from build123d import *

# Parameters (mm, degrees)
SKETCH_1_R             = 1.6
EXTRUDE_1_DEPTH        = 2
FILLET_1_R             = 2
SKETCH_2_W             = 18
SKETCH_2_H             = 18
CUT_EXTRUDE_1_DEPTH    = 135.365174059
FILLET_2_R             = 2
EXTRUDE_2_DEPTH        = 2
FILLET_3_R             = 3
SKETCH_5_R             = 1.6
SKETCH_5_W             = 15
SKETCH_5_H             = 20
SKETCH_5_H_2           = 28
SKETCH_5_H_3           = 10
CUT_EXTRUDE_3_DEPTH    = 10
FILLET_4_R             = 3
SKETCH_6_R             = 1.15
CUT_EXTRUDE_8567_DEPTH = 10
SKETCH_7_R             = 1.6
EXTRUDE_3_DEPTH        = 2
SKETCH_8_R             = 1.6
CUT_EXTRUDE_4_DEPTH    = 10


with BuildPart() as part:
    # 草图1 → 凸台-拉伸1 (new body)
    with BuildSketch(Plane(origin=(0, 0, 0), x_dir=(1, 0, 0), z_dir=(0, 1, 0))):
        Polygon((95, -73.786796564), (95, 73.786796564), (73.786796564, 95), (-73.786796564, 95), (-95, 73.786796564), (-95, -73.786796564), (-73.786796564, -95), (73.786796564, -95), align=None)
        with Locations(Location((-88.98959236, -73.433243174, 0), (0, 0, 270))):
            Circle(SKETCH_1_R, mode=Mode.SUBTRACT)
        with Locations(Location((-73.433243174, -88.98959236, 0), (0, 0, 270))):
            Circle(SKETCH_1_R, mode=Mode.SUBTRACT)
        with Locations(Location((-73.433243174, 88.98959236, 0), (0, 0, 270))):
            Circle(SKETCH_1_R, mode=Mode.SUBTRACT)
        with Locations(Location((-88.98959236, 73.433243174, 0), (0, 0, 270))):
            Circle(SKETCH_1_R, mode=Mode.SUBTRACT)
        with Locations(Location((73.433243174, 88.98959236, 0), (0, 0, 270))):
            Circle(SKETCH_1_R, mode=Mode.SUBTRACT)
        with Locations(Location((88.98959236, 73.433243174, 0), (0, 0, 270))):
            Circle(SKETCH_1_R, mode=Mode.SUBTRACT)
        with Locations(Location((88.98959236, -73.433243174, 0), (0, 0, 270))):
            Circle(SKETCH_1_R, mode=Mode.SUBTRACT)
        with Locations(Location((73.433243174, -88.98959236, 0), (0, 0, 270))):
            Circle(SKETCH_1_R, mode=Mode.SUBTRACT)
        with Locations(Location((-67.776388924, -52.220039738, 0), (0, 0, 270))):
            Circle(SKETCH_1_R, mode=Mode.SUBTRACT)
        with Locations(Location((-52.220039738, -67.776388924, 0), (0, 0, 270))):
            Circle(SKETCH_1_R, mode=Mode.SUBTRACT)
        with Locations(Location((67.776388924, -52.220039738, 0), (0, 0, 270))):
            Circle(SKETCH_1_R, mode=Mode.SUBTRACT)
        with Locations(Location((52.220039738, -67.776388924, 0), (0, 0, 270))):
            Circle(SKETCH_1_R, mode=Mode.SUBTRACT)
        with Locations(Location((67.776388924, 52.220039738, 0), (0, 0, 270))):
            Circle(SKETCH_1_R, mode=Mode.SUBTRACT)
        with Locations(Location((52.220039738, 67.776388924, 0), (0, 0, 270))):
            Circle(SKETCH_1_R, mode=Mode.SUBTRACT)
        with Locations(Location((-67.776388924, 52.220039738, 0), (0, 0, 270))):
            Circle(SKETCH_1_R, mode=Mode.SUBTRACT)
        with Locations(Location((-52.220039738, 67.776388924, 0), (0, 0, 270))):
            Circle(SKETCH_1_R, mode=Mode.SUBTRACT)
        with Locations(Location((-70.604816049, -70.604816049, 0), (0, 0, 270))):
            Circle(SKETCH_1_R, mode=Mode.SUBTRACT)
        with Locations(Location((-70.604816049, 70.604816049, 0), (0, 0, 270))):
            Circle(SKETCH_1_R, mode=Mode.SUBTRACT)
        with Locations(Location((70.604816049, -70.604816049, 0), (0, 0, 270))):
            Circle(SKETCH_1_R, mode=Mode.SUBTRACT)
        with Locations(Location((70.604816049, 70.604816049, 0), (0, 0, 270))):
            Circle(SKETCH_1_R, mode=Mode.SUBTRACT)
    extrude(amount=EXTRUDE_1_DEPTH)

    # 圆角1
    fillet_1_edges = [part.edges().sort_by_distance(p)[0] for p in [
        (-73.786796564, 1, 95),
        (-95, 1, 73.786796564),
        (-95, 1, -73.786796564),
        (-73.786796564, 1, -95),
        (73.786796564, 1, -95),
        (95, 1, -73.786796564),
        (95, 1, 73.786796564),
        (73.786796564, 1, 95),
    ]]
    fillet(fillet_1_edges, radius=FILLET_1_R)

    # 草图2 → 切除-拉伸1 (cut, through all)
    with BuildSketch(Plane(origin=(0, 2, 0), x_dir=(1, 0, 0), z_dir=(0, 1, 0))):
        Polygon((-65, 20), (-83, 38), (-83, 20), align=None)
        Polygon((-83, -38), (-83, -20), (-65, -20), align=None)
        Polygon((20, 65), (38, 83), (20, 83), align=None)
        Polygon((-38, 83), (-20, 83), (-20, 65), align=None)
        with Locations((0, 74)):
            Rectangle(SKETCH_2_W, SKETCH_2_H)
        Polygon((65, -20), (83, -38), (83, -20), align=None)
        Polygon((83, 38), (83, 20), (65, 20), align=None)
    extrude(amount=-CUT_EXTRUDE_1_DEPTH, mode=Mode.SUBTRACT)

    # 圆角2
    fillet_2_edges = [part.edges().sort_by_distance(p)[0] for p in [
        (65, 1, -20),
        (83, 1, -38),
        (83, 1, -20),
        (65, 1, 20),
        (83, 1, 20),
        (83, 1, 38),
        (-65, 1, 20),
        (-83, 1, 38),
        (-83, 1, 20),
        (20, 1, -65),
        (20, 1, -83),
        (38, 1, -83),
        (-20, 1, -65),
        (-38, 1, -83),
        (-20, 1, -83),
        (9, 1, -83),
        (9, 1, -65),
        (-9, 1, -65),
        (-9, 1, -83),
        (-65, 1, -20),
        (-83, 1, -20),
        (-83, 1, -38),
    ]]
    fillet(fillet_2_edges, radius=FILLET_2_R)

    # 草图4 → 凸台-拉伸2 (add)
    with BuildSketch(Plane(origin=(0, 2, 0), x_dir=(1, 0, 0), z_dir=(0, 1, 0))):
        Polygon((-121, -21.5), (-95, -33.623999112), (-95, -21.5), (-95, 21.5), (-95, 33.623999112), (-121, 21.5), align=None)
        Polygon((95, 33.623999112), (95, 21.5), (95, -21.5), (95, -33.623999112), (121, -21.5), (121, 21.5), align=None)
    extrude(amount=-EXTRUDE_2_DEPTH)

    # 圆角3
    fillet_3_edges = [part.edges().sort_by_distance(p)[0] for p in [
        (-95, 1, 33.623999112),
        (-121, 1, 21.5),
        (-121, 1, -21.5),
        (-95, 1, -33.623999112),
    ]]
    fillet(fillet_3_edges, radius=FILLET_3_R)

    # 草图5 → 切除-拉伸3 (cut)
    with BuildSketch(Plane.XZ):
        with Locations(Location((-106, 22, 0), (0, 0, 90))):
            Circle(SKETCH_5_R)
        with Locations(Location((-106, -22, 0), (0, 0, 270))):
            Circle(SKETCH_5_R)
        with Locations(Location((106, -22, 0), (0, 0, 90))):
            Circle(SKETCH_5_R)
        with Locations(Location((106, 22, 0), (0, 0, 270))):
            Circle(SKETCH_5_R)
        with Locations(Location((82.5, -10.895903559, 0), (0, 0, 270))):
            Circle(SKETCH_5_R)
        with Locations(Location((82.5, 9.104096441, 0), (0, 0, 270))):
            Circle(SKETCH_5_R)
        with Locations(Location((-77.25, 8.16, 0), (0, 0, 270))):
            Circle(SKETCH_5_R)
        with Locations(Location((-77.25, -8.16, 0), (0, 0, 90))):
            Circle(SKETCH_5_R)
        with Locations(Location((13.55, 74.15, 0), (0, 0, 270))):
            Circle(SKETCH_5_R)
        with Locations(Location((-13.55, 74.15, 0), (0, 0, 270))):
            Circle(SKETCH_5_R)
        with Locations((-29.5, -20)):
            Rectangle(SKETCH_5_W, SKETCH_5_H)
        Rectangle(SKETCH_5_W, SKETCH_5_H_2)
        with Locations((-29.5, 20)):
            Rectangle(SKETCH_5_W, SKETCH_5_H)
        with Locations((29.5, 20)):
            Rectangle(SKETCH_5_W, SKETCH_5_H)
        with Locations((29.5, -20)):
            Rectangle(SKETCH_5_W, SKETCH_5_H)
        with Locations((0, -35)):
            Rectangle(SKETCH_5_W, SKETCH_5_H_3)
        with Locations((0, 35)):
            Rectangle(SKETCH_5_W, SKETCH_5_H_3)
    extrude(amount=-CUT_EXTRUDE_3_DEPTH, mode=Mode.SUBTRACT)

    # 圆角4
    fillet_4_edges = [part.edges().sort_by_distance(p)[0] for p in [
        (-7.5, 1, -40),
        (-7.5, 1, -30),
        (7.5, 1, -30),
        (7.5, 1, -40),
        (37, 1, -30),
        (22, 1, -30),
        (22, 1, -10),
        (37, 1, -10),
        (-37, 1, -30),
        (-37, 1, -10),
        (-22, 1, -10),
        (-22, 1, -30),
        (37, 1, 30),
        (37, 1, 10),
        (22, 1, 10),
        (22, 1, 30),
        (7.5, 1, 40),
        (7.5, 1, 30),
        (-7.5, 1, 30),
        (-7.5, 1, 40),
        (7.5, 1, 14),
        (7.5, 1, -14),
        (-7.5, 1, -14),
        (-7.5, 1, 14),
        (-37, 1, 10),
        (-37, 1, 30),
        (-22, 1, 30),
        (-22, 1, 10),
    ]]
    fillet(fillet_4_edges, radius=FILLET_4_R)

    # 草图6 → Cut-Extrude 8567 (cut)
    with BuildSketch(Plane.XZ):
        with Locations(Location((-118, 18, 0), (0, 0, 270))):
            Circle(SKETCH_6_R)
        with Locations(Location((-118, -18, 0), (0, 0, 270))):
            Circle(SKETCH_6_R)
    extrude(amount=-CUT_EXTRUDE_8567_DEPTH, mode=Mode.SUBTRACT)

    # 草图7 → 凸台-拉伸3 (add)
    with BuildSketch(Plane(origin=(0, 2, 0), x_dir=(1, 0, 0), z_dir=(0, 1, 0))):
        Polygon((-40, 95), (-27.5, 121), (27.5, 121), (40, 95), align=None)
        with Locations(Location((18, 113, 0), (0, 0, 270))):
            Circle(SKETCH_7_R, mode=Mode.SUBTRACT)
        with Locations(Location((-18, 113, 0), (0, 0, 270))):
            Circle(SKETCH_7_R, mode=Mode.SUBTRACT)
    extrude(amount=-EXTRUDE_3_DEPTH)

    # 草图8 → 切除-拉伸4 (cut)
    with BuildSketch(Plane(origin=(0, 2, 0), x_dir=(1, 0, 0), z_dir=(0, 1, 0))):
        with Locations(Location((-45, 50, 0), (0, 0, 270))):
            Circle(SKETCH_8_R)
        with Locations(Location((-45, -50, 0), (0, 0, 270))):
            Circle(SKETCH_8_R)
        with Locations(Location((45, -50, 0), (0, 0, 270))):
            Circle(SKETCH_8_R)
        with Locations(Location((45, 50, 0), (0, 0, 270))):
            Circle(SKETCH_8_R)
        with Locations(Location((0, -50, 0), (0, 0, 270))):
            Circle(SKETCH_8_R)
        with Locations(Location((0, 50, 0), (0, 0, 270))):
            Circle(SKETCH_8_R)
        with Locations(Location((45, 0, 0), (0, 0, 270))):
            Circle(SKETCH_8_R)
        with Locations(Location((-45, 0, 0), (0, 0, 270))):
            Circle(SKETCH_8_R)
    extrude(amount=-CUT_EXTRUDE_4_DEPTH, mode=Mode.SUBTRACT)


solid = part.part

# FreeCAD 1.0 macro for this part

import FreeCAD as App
import Part
import Sketcher

V = App.Vector
Q = App.Units.Quantity


def edges_at(feature, points):
    """Names of the edges that pass closest to the given points."""
    edges = feature.Shape.Edges
    near = lambda p: min(range(len(edges)), key=lambda i: edges[i].distToShape(Part.Vertex(*p))[0])
    return sorted({f"Edge{near(p) + 1}" for p in points})

doc = App.newDocument("Part")
body = doc.addObject("PartDesign::Body", "Body")

sketch1 = body.newObject("Sketcher::SketchObject", "Sketch")
sketch1.AttachmentSupport = (doc.getObject("XZ_Plane"), [""])
sketch1.MapMode = "FlatFace"
sketch1.addGeometry([
    Part.LineSegment(V(95, 73.8, 0), V(95, -73.8, 0)),
    Part.LineSegment(V(95, -73.8, 0), V(73.8, -95, 0)),
    Part.LineSegment(V(73.8, -95, 0), V(-73.8, -95, 0)),
    Part.LineSegment(V(-73.8, -95, 0), V(-95, -73.8, 0)),
    Part.LineSegment(V(-95, -73.8, 0), V(-95, 73.8, 0)),
    Part.LineSegment(V(-95, 73.8, 0), V(-73.8, 95, 0)),
    Part.LineSegment(V(-73.8, 95, 0), V(73.8, 95, 0)),
    Part.LineSegment(V(73.8, 95, 0), V(95, 73.8, 0)),
    Part.Circle(V(-73.4, 89, 0), V(0, 0, 1), 1.6),
    Part.Circle(V(-89, 73.4, 0), V(0, 0, 1), 1.6),
    Part.Circle(V(-70.6, 70.6, 0), V(0, 0, 1), 1.6),
    Part.Circle(V(-52.2, 67.8, 0), V(0, 0, 1), 1.6),
    Part.Circle(V(-67.8, 52.2, 0), V(0, 0, 1), 1.6),
    Part.Circle(V(73.4, 89, 0), V(0, 0, 1), 1.6),
    Part.Circle(V(70.6, 70.6, 0), V(0, 0, 1), 1.6),
    Part.Circle(V(89, 73.4, 0), V(0, 0, 1), 1.6),
    Part.Circle(V(52.2, 67.8, 0), V(0, 0, 1), 1.6),
    Part.Circle(V(67.8, 52.2, 0), V(0, 0, 1), 1.6),
    Part.Circle(V(-67.8, -52.2, 0), V(0, 0, 1), 1.6),
    Part.Circle(V(-52.2, -67.8, 0), V(0, 0, 1), 1.6),
    Part.Circle(V(-89, -73.4, 0), V(0, 0, 1), 1.6),
    Part.Circle(V(-70.6, -70.6, 0), V(0, 0, 1), 1.6),
    Part.Circle(V(-73.4, -89, 0), V(0, 0, 1), 1.6),
    Part.Circle(V(67.8, -52.2, 0), V(0, 0, 1), 1.6),
    Part.Circle(V(52.2, -67.8, 0), V(0, 0, 1), 1.6),
    Part.Circle(V(70.6, -70.6, 0), V(0, 0, 1), 1.6),
    Part.Circle(V(89, -73.4, 0), V(0, 0, 1), 1.6),
    Part.Circle(V(73.4, -89, 0), V(0, 0, 1), 1.6),
], False)
sketch1.addConstraint([
    Sketcher.Constraint("Coincident", 0, 2, 1, 1),
    Sketcher.Constraint("Coincident", 1, 2, 2, 1),
    Sketcher.Constraint("Coincident", 2, 2, 3, 1),
    Sketcher.Constraint("Coincident", 3, 2, 4, 1),
    Sketcher.Constraint("Coincident", 4, 2, 5, 1),
    Sketcher.Constraint("Coincident", 5, 2, 6, 1),
    Sketcher.Constraint("Coincident", 6, 2, 7, 1),
    Sketcher.Constraint("Coincident", 7, 2, 0, 1),
    Sketcher.Constraint("Vertical", 0),
    Sketcher.Constraint("Horizontal", 2),
    Sketcher.Constraint("Vertical", 4),
    Sketcher.Constraint("Horizontal", 6),
    Sketcher.Constraint("Equal", 8, 9),
    Sketcher.Constraint("Equal", 9, 10),
    Sketcher.Constraint("Equal", 10, 11),
    Sketcher.Constraint("Equal", 11, 12),
    Sketcher.Constraint("Equal", 12, 13),
    Sketcher.Constraint("Equal", 13, 14),
    Sketcher.Constraint("Equal", 14, 15),
    Sketcher.Constraint("Equal", 15, 16),
    Sketcher.Constraint("Equal", 16, 17),
    Sketcher.Constraint("Equal", 17, 18),
    Sketcher.Constraint("Equal", 18, 19),
    Sketcher.Constraint("Equal", 19, 20),
    Sketcher.Constraint("Equal", 20, 21),
    Sketcher.Constraint("Equal", 21, 22),
    Sketcher.Constraint("Equal", 22, 23),
    Sketcher.Constraint("Equal", 23, 24),
    Sketcher.Constraint("Equal", 24, 25),
    Sketcher.Constraint("Equal", 25, 26),
    Sketcher.Constraint("Equal", 26, 27),
    Sketcher.Constraint("Symmetric", 17, 3, 18, 3, -1, 1),
    Sketcher.Constraint("Symmetric", 16, 3, 19, 3, -1, 1),
    Sketcher.Constraint("Symmetric", 15, 3, 20, 3, -1, 1),
    Sketcher.Constraint("Symmetric", 14, 3, 21, 3, -1, 1),
    Sketcher.Constraint("Symmetric", 13, 3, 22, 3, -1, 1),
    Sketcher.Constraint("Symmetric", 12, 3, 23, 3, -1, 1),
    Sketcher.Constraint("Symmetric", 11, 3, 24, 3, -1, 1),
    Sketcher.Constraint("Symmetric", 10, 3, 25, 3, -1, 1),
    Sketcher.Constraint("Symmetric", 9, 3, 26, 3, -1, 1),
    Sketcher.Constraint("Symmetric", 8, 3, 27, 3, -1, 1),
    Sketcher.Constraint("Symmetric", 0, 2, 4, 2, -1, 1),
    Sketcher.Constraint("Symmetric", 1, 2, 5, 2, -1, 1),
    Sketcher.Constraint("Symmetric", 8, 3, 13, 3, -2),
    Sketcher.Constraint("Symmetric", 10, 3, 14, 3, -2),
    Sketcher.Constraint("Symmetric", 9, 3, 15, 3, -2),
    Sketcher.Constraint("Symmetric", 11, 3, 16, 3, -2),
    Sketcher.Constraint("Symmetric", 12, 3, 17, 3, -2),
    Sketcher.Constraint("Perpendicular", 1, 3),
    Sketcher.Constraint("Perpendicular", 5, 7),
    Sketcher.Constraint("Horizontal", 0, 2, 3, 2),
    Sketcher.Constraint("Horizontal", 4, 2, 7, 2),
    Sketcher.Constraint("Vertical", 2, 2, 5, 2),
    Sketcher.Constraint("Equal", 6, 0),
    Sketcher.Constraint("Diameter", 8, Q("3.2 mm")),
    Sketcher.Constraint("Distance", 1, Q("30 mm")),
    Sketcher.Constraint("DistanceX", -1, 1, 0, 2, Q("95 mm")),
    Sketcher.Constraint("DistanceX", 11, 3, -1, 1, Q("52.22004 mm")),
    Sketcher.Constraint("DistanceY", -1, 1, 11, 3, Q("67.776389 mm")),
    Sketcher.Constraint("DistanceX", 12, 3, -1, 1, Q("67.776389 mm")),
    Sketcher.Constraint("DistanceY", -1, 1, 12, 3, Q("52.22004 mm")),
    Sketcher.Constraint("DistanceX", 9, 3, 8, 3, Q("15.556349 mm")),
    Sketcher.Constraint("DistanceY", 9, 3, 8, 3, Q("15.556349 mm")),
    Sketcher.Constraint("DistanceX", 10, 3, 13, 3, Q("144.038059 mm")),
    Sketcher.Constraint("DistanceX", 12, 3, 15, 3, Q("156.765981 mm")),
    Sketcher.Constraint("DistanceY", 20, 3, 10, 3, Q("144.038059 mm")),
    Sketcher.Constraint("DistanceY", 0, 2, 25, 3, Q("3.181981 mm")),
])
pad1 = body.newObject("PartDesign::Pad", "Pad")
pad1.Profile = sketch1
pad1.Length = 2
pad1.Reversed = True
doc.recompute()

fillet = body.newObject("PartDesign::Fillet", "Fillet")
fillet.Base = (pad1, edges_at(pad1, [
    (-73.787, 1, 95),
    (-95, 1, 73.787),
    (-95, 1, -73.787),
    (-73.787, 1, -95),
    (73.787, 1, -95),
    (95, 1, -73.787),
    (95, 1, 73.787),
    (73.787, 1, 95),
]))
fillet.Radius = 2

sketch2 = body.newObject("Sketcher::SketchObject", "Sketch001")
sketch2.AttachmentSupport = (doc.getObject("XZ_Plane"), [""])
sketch2.MapMode = "FlatFace"
sketch2.AttachmentOffset = App.Placement(V(0, 0, -2), App.Rotation())
sketch2.addGeometry([
    Part.LineSegment(V(-65, -20, 0), V(-83, -38, 0)),
    Part.LineSegment(V(-83, -38, 0), V(-83, -20, 0)),
    Part.LineSegment(V(-83, -20, 0), V(-65, -20, 0)),
    Part.LineSegment(V(-83, 20, 0), V(-83, 38, 0)),
    Part.LineSegment(V(-83, 38, 0), V(-65, 20, 0)),
    Part.LineSegment(V(-65, 20, 0), V(-83, 20, 0)),
    Part.LineSegment(V(20, -65, 0), V(38, -83, 0)),
    Part.LineSegment(V(38, -83, 0), V(20, -83, 0)),
    Part.LineSegment(V(20, -83, 0), V(20, -65, 0)),
    Part.LineSegment(V(-20, -83, 0), V(-38, -83, 0)),
    Part.LineSegment(V(-38, -83, 0), V(-20, -65, 0)),
    Part.LineSegment(V(-20, -65, 0), V(-20, -83, 0)),
    Part.LineSegment(V(-9, -83, 0), V(-9, -65, 0)),
    Part.LineSegment(V(-9, -65, 0), V(9, -65, 0)),
    Part.LineSegment(V(9, -65, 0), V(9, -83, 0)),
    Part.LineSegment(V(9, -83, 0), V(-9, -83, 0)),
    Part.LineSegment(V(65, 20, 0), V(83, 38, 0)),
    Part.LineSegment(V(83, 38, 0), V(83, 20, 0)),
    Part.LineSegment(V(83, 20, 0), V(65, 20, 0)),
    Part.LineSegment(V(83, -20, 0), V(83, -38, 0)),
    Part.LineSegment(V(83, -38, 0), V(65, -20, 0)),
    Part.LineSegment(V(65, -20, 0), V(83, -20, 0)),
], False)
sketch2.addConstraint([
    Sketcher.Constraint("Coincident", 0, 2, 1, 1),
    Sketcher.Constraint("Coincident", 1, 2, 2, 1),
    Sketcher.Constraint("Coincident", 2, 2, 0, 1),
    Sketcher.Constraint("Coincident", 3, 2, 4, 1),
    Sketcher.Constraint("Coincident", 4, 2, 5, 1),
    Sketcher.Constraint("Coincident", 5, 2, 3, 1),
    Sketcher.Constraint("Coincident", 6, 2, 7, 1),
    Sketcher.Constraint("Coincident", 7, 2, 8, 1),
    Sketcher.Constraint("Coincident", 8, 2, 6, 1),
    Sketcher.Constraint("Coincident", 9, 2, 10, 1),
    Sketcher.Constraint("Coincident", 10, 2, 11, 1),
    Sketcher.Constraint("Coincident", 11, 2, 9, 1),
    Sketcher.Constraint("Coincident", 12, 2, 13, 1),
    Sketcher.Constraint("Coincident", 13, 2, 14, 1),
    Sketcher.Constraint("Coincident", 14, 2, 15, 1),
    Sketcher.Constraint("Coincident", 15, 2, 12, 1),
    Sketcher.Constraint("Coincident", 16, 2, 17, 1),
    Sketcher.Constraint("Coincident", 17, 2, 18, 1),
    Sketcher.Constraint("Coincident", 18, 2, 16, 1),
    Sketcher.Constraint("Coincident", 19, 2, 20, 1),
    Sketcher.Constraint("Coincident", 20, 2, 21, 1),
    Sketcher.Constraint("Coincident", 21, 2, 19, 1),
    Sketcher.Constraint("Vertical", 1),
    Sketcher.Constraint("Horizontal", 2),
    Sketcher.Constraint("Vertical", 3),
    Sketcher.Constraint("Horizontal", 5),
    Sketcher.Constraint("Horizontal", 7),
    Sketcher.Constraint("Vertical", 8),
    Sketcher.Constraint("Horizontal", 9),
    Sketcher.Constraint("Vertical", 11),
    Sketcher.Constraint("Vertical", 12),
    Sketcher.Constraint("Horizontal", 13),
    Sketcher.Constraint("Vertical", 14),
    Sketcher.Constraint("Horizontal", 15),
    Sketcher.Constraint("Vertical", 17),
    Sketcher.Constraint("Horizontal", 18),
    Sketcher.Constraint("Vertical", 19),
    Sketcher.Constraint("Horizontal", 21),
    Sketcher.Constraint("Symmetric", 0, 2, 16, 2, -1, 1),
    Sketcher.Constraint("Symmetric", 2, 2, 18, 2, -1, 1),
    Sketcher.Constraint("Symmetric", 3, 2, 19, 2, -1, 1),
    Sketcher.Constraint("Symmetric", 4, 2, 20, 2, -1, 1),
    Sketcher.Constraint("Symmetric", 6, 2, 9, 2, -2),
    Sketcher.Constraint("Symmetric", 8, 2, 10, 2, -2),
    Sketcher.Constraint("Symmetric", 3, 2, 16, 2, -2),
    Sketcher.Constraint("Symmetric", 4, 2, 18, 2, -2),
    Sketcher.Constraint("Perpendicular", 0, 4),
    Sketcher.Constraint("Parallel", 4, 6),
    Sketcher.Constraint("Horizontal", 10, 2, 12, 2),
    Sketcher.Constraint("Horizontal", 11, 2, 14, 2),
    Sketcher.Constraint("Equal", 5, 7),
    Sketcher.Constraint("Equal", 9, 13),
    Sketcher.Constraint("DistanceX", 2, 1, 2, 2, Q("18 mm")),
    Sketcher.Constraint("DistanceX", 0, 2, -1, 1, Q("83 mm")),
    Sketcher.Constraint("DistanceY", 0, 2, -1, 1, Q("38 mm")),
    Sketcher.Constraint("DistanceX", -1, 1, 6, 2, Q("38 mm")),
    Sketcher.Constraint("DistanceY", 6, 2, -1, 1, Q("83 mm")),
    Sketcher.Constraint("DistanceX", 12, 2, -1, 1, Q("9 mm")),
])
pocket1 = body.newObject("PartDesign::Pocket", "Pocket")
pocket1.Profile = sketch2
pocket1.Type = "ThroughAll"
pocket1.Reversed = True
doc.recompute()

fillet2 = body.newObject("PartDesign::Fillet", "Fillet001")
fillet2.Base = (pocket1, edges_at(pocket1, [
    (65, 1, -20),
    (83, 1, -38),
    (83, 1, -20),
    (65, 1, 20),
    (83, 1, 20),
    (83, 1, 38),
    (-65, 1, 20),
    (-83, 1, 38),
    (-83, 1, 20),
    (20, 1, -65),
    (20, 1, -83),
    (38, 1, -83),
    (-20, 1, -65),
    (-38, 1, -83),
    (-20, 1, -83),
    (9, 1, -83),
    (9, 1, -65),
    (-9, 1, -65),
    (-9, 1, -83),
    (-65, 1, -20),
    (-83, 1, -20),
    (-83, 1, -38),
]))
fillet2.Radius = 2

sketch3 = body.newObject("Sketcher::SketchObject", "Sketch002")
sketch3.AttachmentSupport = (doc.getObject("XZ_Plane"), [""])
sketch3.MapMode = "FlatFace"
sketch3.AttachmentOffset = App.Placement(V(0, 0, -2), App.Rotation())
sketch3.addGeometry([
    Part.LineSegment(V(-121, 22, 0), V(-95, 34, 0)),
    Part.LineSegment(V(-95, 34, 0), V(-95, -34, 0)),
    Part.LineSegment(V(-95, -34, 0), V(-121, -22, 0)),
    Part.LineSegment(V(-121, -22, 0), V(-121, 22, 0)),
    Part.LineSegment(V(95, -34, 0), V(95, 34, 0)),
    Part.LineSegment(V(95, 34, 0), V(121, 22, 0)),
    Part.LineSegment(V(121, 22, 0), V(121, -22, 0)),
    Part.LineSegment(V(121, -22, 0), V(95, -34, 0)),
], False)
sketch3.addConstraint([
    Sketcher.Constraint("Coincident", 0, 2, 1, 1),
    Sketcher.Constraint("Coincident", 1, 2, 2, 1),
    Sketcher.Constraint("Coincident", 2, 2, 3, 1),
    Sketcher.Constraint("Coincident", 3, 2, 0, 1),
    Sketcher.Constraint("Coincident", 4, 2, 5, 1),
    Sketcher.Constraint("Coincident", 5, 2, 6, 1),
    Sketcher.Constraint("Coincident", 6, 2, 7, 1),
    Sketcher.Constraint("Coincident", 7, 2, 4, 1),
    Sketcher.Constraint("Vertical", 1),
    Sketcher.Constraint("Vertical", 3),
    Sketcher.Constraint("Vertical", 4),
    Sketcher.Constraint("Vertical", 6),
    Sketcher.Constraint("Symmetric", 1, 2, 4, 2, -1, 1),
    Sketcher.Constraint("Symmetric", 2, 2, 5, 2, -1, 1),
    Sketcher.Constraint("Parallel", 0, 7),
    Sketcher.Constraint("Horizontal", 0, 2, 4, 2),
    Sketcher.Constraint("Horizontal", 3, 2, 5, 2),
    Sketcher.Constraint("Horizontal", 2, 2, 6, 2),
    Sketcher.Constraint("DistanceY", 3, 1, 3, 2, Q("43 mm")),
    Sketcher.Constraint("Angle", 0, Q("25 deg")),
    Sketcher.Constraint("DistanceX", 0, 2, -1, 1, Q("95 mm")),
    Sketcher.Constraint("DistanceX", 2, 2, -1, 1, Q("121 mm")),
])
pad2 = body.newObject("PartDesign::Pad", "Pad001")
pad2.Profile = sketch3
pad2.Length = 2
doc.recompute()

fillet3 = body.newObject("PartDesign::Fillet", "Fillet002")
fillet3.Base = (pad2, edges_at(pad2, [
    (-95, 1, 33.624),
    (-121, 1, 21.5),
    (-121, 1, -21.5),
    (-95, 1, -33.624),
]))
fillet3.Radius = 3

sketch4 = body.newObject("Sketcher::SketchObject", "Sketch003")
sketch4.AttachmentSupport = (doc.getObject("XZ_Plane"), [""])
sketch4.MapMode = "FlatFace"
sketch4.addGeometry([
    Part.Circle(V(-106, 22, 0), V(0, 0, 1), 1.6),
    Part.Circle(V(-106, -22, 0), V(0, 0, 1), 1.6),
    Part.Circle(V(106, -22, 0), V(0, 0, 1), 1.6),
    Part.Circle(V(106, 22, 0), V(0, 0, 1), 1.6),
    Part.Circle(V(82.5, -10.9, 0), V(0, 0, 1), 1.6),
    Part.Circle(V(82.5, 9.1, 0), V(0, 0, 1), 1.6),
    Part.Circle(V(-77.2, 8.2, 0), V(0, 0, 1), 1.6),
    Part.Circle(V(-77.2, -8.2, 0), V(0, 0, 1), 1.6),
    Part.Circle(V(13.6, 74.2, 0), V(0, 0, 1), 1.6),
    Part.Circle(V(-13.6, 74.2, 0), V(0, 0, 1), 1.6),
    Part.LineSegment(V(-37, -10, 0), V(-37, -30, 0)),
    Part.LineSegment(V(-37, -30, 0), V(-22, -30, 0)),
    Part.LineSegment(V(-22, -30, 0), V(-22, -10, 0)),
    Part.LineSegment(V(-22, -10, 0), V(-37, -10, 0)),
    Part.LineSegment(V(-7.5, 14, 0), V(-7.5, -14, 0)),
    Part.LineSegment(V(-7.5, -14, 0), V(7.5, -14, 0)),
    Part.LineSegment(V(7.5, -14, 0), V(7.5, 14, 0)),
    Part.LineSegment(V(7.5, 14, 0), V(-7.5, 14, 0)),
    Part.LineSegment(V(-37, 30, 0), V(-37, 10, 0)),
    Part.LineSegment(V(-37, 10, 0), V(-22, 10, 0)),
    Part.LineSegment(V(-22, 10, 0), V(-22, 30, 0)),
    Part.LineSegment(V(-22, 30, 0), V(-37, 30, 0)),
    Part.LineSegment(V(22, 30, 0), V(22, 10, 0)),
    Part.LineSegment(V(22, 10, 0), V(37, 10, 0)),
    Part.LineSegment(V(37, 10, 0), V(37, 30, 0)),
    Part.LineSegment(V(37, 30, 0), V(22, 30, 0)),
    Part.LineSegment(V(22, -10, 0), V(22, -30, 0)),
    Part.LineSegment(V(22, -30, 0), V(37, -30, 0)),
    Part.LineSegment(V(37, -30, 0), V(37, -10, 0)),
    Part.LineSegment(V(37, -10, 0), V(22, -10, 0)),
    Part.LineSegment(V(-7.5, -30, 0), V(-7.5, -40, 0)),
    Part.LineSegment(V(-7.5, -40, 0), V(7.5, -40, 0)),
    Part.LineSegment(V(7.5, -40, 0), V(7.5, -30, 0)),
    Part.LineSegment(V(7.5, -30, 0), V(-7.5, -30, 0)),
    Part.LineSegment(V(-7.5, 40, 0), V(-7.5, 30, 0)),
    Part.LineSegment(V(-7.5, 30, 0), V(7.5, 30, 0)),
    Part.LineSegment(V(7.5, 30, 0), V(7.5, 40, 0)),
    Part.LineSegment(V(7.5, 40, 0), V(-7.5, 40, 0)),
], False)
sketch4.addConstraint([
    Sketcher.Constraint("Coincident", 10, 2, 11, 1),
    Sketcher.Constraint("Coincident", 11, 2, 12, 1),
    Sketcher.Constraint("Coincident", 12, 2, 13, 1),
    Sketcher.Constraint("Coincident", 13, 2, 10, 1),
    Sketcher.Constraint("Coincident", 14, 2, 15, 1),
    Sketcher.Constraint("Coincident", 15, 2, 16, 1),
    Sketcher.Constraint("Coincident", 16, 2, 17, 1),
    Sketcher.Constraint("Coincident", 17, 2, 14, 1),
    Sketcher.Constraint("Coincident", 18, 2, 19, 1),
    Sketcher.Constraint("Coincident", 19, 2, 20, 1),
    Sketcher.Constraint("Coincident", 20, 2, 21, 1),
    Sketcher.Constraint("Coincident", 21, 2, 18, 1),
    Sketcher.Constraint("Coincident", 22, 2, 23, 1),
    Sketcher.Constraint("Coincident", 23, 2, 24, 1),
    Sketcher.Constraint("Coincident", 24, 2, 25, 1),
    Sketcher.Constraint("Coincident", 25, 2, 22, 1),
    Sketcher.Constraint("Coincident", 26, 2, 27, 1),
    Sketcher.Constraint("Coincident", 27, 2, 28, 1),
    Sketcher.Constraint("Coincident", 28, 2, 29, 1),
    Sketcher.Constraint("Coincident", 29, 2, 26, 1),
    Sketcher.Constraint("Coincident", 30, 2, 31, 1),
    Sketcher.Constraint("Coincident", 31, 2, 32, 1),
    Sketcher.Constraint("Coincident", 32, 2, 33, 1),
    Sketcher.Constraint("Coincident", 33, 2, 30, 1),
    Sketcher.Constraint("Coincident", 34, 2, 35, 1),
    Sketcher.Constraint("Coincident", 35, 2, 36, 1),
    Sketcher.Constraint("Coincident", 36, 2, 37, 1),
    Sketcher.Constraint("Coincident", 37, 2, 34, 1),
    Sketcher.Constraint("Vertical", 10),
    Sketcher.Constraint("Horizontal", 11),
    Sketcher.Constraint("Vertical", 12),
    Sketcher.Constraint("Horizontal", 13),
    Sketcher.Constraint("Vertical", 14),
    Sketcher.Constraint("Horizontal", 15),
    Sketcher.Constraint("Vertical", 16),
    Sketcher.Constraint("Horizontal", 17),
    Sketcher.Constraint("Vertical", 18),
    Sketcher.Constraint("Horizontal", 19),
    Sketcher.Constraint("Vertical", 20),
    Sketcher.Constraint("Horizontal", 21),
    Sketcher.Constraint("Vertical", 22),
    Sketcher.Constraint("Horizontal", 23),
    Sketcher.Constraint("Vertical", 24),
    Sketcher.Constraint("Horizontal", 25),
    Sketcher.Constraint("Vertical", 26),
    Sketcher.Constraint("Horizontal", 27),
    Sketcher.Constraint("Vertical", 28),
    Sketcher.Constraint("Horizontal", 29),
    Sketcher.Constraint("Vertical", 30),
    Sketcher.Constraint("Horizontal", 31),
    Sketcher.Constraint("Vertical", 32),
    Sketcher.Constraint("Horizontal", 33),
    Sketcher.Constraint("Vertical", 34),
    Sketcher.Constraint("Horizontal", 35),
    Sketcher.Constraint("Vertical", 36),
    Sketcher.Constraint("Horizontal", 37),
    Sketcher.Constraint("Equal", 0, 1),
    Sketcher.Constraint("Equal", 1, 2),
    Sketcher.Constraint("Equal", 2, 3),
    Sketcher.Constraint("Equal", 3, 4),
    Sketcher.Constraint("Equal", 4, 5),
    Sketcher.Constraint("Equal", 5, 6),
    Sketcher.Constraint("Equal", 6, 7),
    Sketcher.Constraint("Equal", 7, 8),
    Sketcher.Constraint("Equal", 8, 9),
    Sketcher.Constraint("Symmetric", 0, 3, 2, 3, -1, 1),
    Sketcher.Constraint("Symmetric", 1, 3, 3, 3, -1, 1),
    Sketcher.Constraint("Symmetric", 14, 2, 16, 2, -1, 1),
    Sketcher.Constraint("Symmetric", 12, 2, 22, 2, -1, 1),
    Sketcher.Constraint("Symmetric", 10, 2, 24, 2, -1, 1),
    Sketcher.Constraint("Symmetric", 20, 2, 26, 2, -1, 1),
    Sketcher.Constraint("Symmetric", 18, 2, 28, 2, -1, 1),
    Sketcher.Constraint("Symmetric", 32, 2, 34, 2, -1, 1),
    Sketcher.Constraint("Symmetric", 30, 2, 36, 2, -1, 1),
    Sketcher.Constraint("Symmetric", 1, 3, 2, 3, -2),
    Sketcher.Constraint("Symmetric", 8, 3, 9, 3, -2),
    Sketcher.Constraint("Symmetric", 19, 2, 22, 2, -2),
    Sketcher.Constraint("Symmetric", 21, 2, 24, 2, -2),
    Sketcher.Constraint("Symmetric", 6, 3, 7, 3, -1),
    Sketcher.Constraint("Horizontal", 27, 2, 32, 2),
    Sketcher.Constraint("Vertical", 4, 3, 5, 3),
    Sketcher.Constraint("Vertical", 17, 2, 30, 2),
    Sketcher.Constraint("Vertical", 16, 2, 31, 2),
    Sketcher.Constraint("Equal", 13, 15),
    Sketcher.Constraint("Diameter", 0, Q("3.2 mm")),
    Sketcher.Constraint("DistanceX", 11, 1, 11, 2, Q("15 mm")),
    Sketcher.Constraint("DistanceY", 10, 2, 10, 1, Q("20 mm")),
    Sketcher.Constraint("DistanceY", 14, 2, 14, 1, Q("28 mm")),
    Sketcher.Constraint("DistanceY", 30, 2, 30, 1, Q("10 mm")),
    Sketcher.Constraint("DistanceX", 0, 3, -1, 1, Q("106 mm")),
    Sketcher.Constraint("DistanceY", -1, 1, 0, 3, Q("22 mm")),
    Sketcher.Constraint("DistanceX", 10, 2, -1, 1, Q("37 mm")),
    Sketcher.Constraint("DistanceY", 10, 2, -1, 1, Q("30 mm")),
    Sketcher.Constraint("DistanceY", 4, 3, 5, 3, Q("20 mm")),
    Sketcher.Constraint("DistanceX", -1, 1, 4, 3, Q("82.5 mm")),
    Sketcher.Constraint("DistanceX", 6, 3, 8, 3, Q("90.8 mm")),
    Sketcher.Constraint("DistanceX", 9, 3, 8, 3, Q("27.1 mm")),
    Sketcher.Constraint("DistanceY", -1, 1, 6, 3, Q("8.16 mm")),
    Sketcher.Constraint("DistanceY", -1, 1, 8, 3, Q("74.15 mm")),
    Sketcher.Constraint("DistanceY", 4, 3, -1, 1, Q("10.895904 mm")),
])
pocket2 = body.newObject("PartDesign::Pocket", "Pocket001")
pocket2.Profile = sketch4
pocket2.Length = 10
doc.recompute()

fillet4 = body.newObject("PartDesign::Fillet", "Fillet003")
fillet4.Base = (pocket2, edges_at(pocket2, [
    (-7.5, 1, -40),
    (-7.5, 1, -30),
    (7.5, 1, -30),
    (7.5, 1, -40),
    (37, 1, -30),
    (22, 1, -30),
    (22, 1, -10),
    (37, 1, -10),
    (-37, 1, -30),
    (-37, 1, -10),
    (-22, 1, -10),
    (-22, 1, -30),
    (37, 1, 30),
    (37, 1, 10),
    (22, 1, 10),
    (22, 1, 30),
    (7.5, 1, 40),
    (7.5, 1, 30),
    (-7.5, 1, 30),
    (-7.5, 1, 40),
    (7.5, 1, 14),
    (7.5, 1, -14),
    (-7.5, 1, -14),
    (-7.5, 1, 14),
    (-37, 1, 10),
    (-37, 1, 30),
    (-22, 1, 30),
    (-22, 1, 10),
]))
fillet4.Radius = 3

sketch5 = body.newObject("Sketcher::SketchObject", "Sketch004")
sketch5.AttachmentSupport = (doc.getObject("XZ_Plane"), [""])
sketch5.MapMode = "FlatFace"
sketch5.addGeometry([
    Part.Circle(V(-118, 18, 0), V(0, 0, 1), 1.1),
    Part.Circle(V(-118, -18, 0), V(0, 0, 1), 1.1),
], False)
sketch5.addConstraint([
    Sketcher.Constraint("Equal", 0, 1),
    Sketcher.Constraint("Symmetric", 0, 3, 1, 3, -1),
    Sketcher.Constraint("Diameter", 0, Q("2.3 mm")),
    Sketcher.Constraint("DistanceX", 0, 3, -1, 1, Q("118 mm")),
    Sketcher.Constraint("DistanceY", -1, 1, 0, 3, Q("18 mm")),
])
pocket3 = body.newObject("PartDesign::Pocket", "Pocket002")
pocket3.Profile = sketch5
pocket3.Length = 10

sketch6 = body.newObject("Sketcher::SketchObject", "Sketch005")
sketch6.AttachmentSupport = (doc.getObject("XZ_Plane"), [""])
sketch6.MapMode = "FlatFace"
sketch6.AttachmentOffset = App.Placement(V(0, 0, -2), App.Rotation())
sketch6.addGeometry([
    Part.LineSegment(V(-27.5, -121, 0), V(-40, -95, 0)),
    Part.LineSegment(V(-40, -95, 0), V(40, -95, 0)),
    Part.LineSegment(V(40, -95, 0), V(27.5, -121, 0)),
    Part.LineSegment(V(27.5, -121, 0), V(-27.5, -121, 0)),
    Part.Circle(V(18, -113, 0), V(0, 0, 1), 1.6),
    Part.Circle(V(-18, -113, 0), V(0, 0, 1), 1.6),
], False)
sketch6.addConstraint([
    Sketcher.Constraint("Coincident", 0, 2, 1, 1),
    Sketcher.Constraint("Coincident", 1, 2, 2, 1),
    Sketcher.Constraint("Coincident", 2, 2, 3, 1),
    Sketcher.Constraint("Coincident", 3, 2, 0, 1),
    Sketcher.Constraint("Horizontal", 1),
    Sketcher.Constraint("Horizontal", 3),
    Sketcher.Constraint("Equal", 4, 5),
    Sketcher.Constraint("Symmetric", 4, 3, 5, 3, -2),
    Sketcher.Constraint("Equal", 0, 2),
    Sketcher.Constraint("Diameter", 4, Q("3.2 mm")),
    Sketcher.Constraint("DistanceX", 1, 1, 1, 2, Q("80 mm")),
    Sketcher.Constraint("DistanceX", 3, 2, 3, 1, Q("55 mm")),
    Sketcher.Constraint("DistanceX", -1, 1, 4, 3, Q("18 mm")),
    Sketcher.Constraint("DistanceY", 4, 3, -1, 1, Q("113 mm")),
    Sketcher.Constraint("DistanceX", 0, 2, -1, 1, Q("40 mm")),
    Sketcher.Constraint("DistanceY", 0, 2, -1, 1, Q("95 mm")),
    Sketcher.Constraint("DistanceY", 2, 2, -1, 1, Q("121 mm")),
])
pad3 = body.newObject("PartDesign::Pad", "Pad002")
pad3.Profile = sketch6
pad3.Length = 2

sketch7 = body.newObject("Sketcher::SketchObject", "Sketch006")
sketch7.AttachmentSupport = (doc.getObject("XZ_Plane"), [""])
sketch7.MapMode = "FlatFace"
sketch7.AttachmentOffset = App.Placement(V(0, 0, -2), App.Rotation())
sketch7.addGeometry([
    Part.Circle(V(-45, -50, 0), V(0, 0, 1), 1.6),
    Part.Circle(V(-45, 50, 0), V(0, 0, 1), 1.6),
    Part.Circle(V(45, 50, 0), V(0, 0, 1), 1.6),
    Part.Circle(V(45, -50, 0), V(0, 0, 1), 1.6),
    Part.Circle(V(0, 50, 0), V(0, 0, 1), 1.6),
    Part.Circle(V(0, -50, 0), V(0, 0, 1), 1.6),
    Part.Circle(V(45, 0, 0), V(0, 0, 1), 1.6),
    Part.Circle(V(-45, 0, 0), V(0, 0, 1), 1.6),
], False)
sketch7.addConstraint([
    Sketcher.Constraint("Equal", 0, 1),
    Sketcher.Constraint("Equal", 1, 2),
    Sketcher.Constraint("Equal", 2, 3),
    Sketcher.Constraint("Equal", 3, 4),
    Sketcher.Constraint("Equal", 4, 5),
    Sketcher.Constraint("Equal", 5, 6),
    Sketcher.Constraint("Equal", 6, 7),
    Sketcher.Constraint("Symmetric", 0, 3, 2, 3, -1, 1),
    Sketcher.Constraint("Symmetric", 1, 3, 3, 3, -1, 1),
    Sketcher.Constraint("Symmetric", 4, 3, 5, 3, -1, 1),
    Sketcher.Constraint("Symmetric", 6, 3, 7, 3, -1, 1),
    Sketcher.Constraint("Symmetric", 1, 3, 2, 3, -2),
    Sketcher.Constraint("PointOnObject", 4, 3, -2),
    Sketcher.Constraint("PointOnObject", 6, 3, -1),
    Sketcher.Constraint("Horizontal", 2, 3, 4, 3),
    Sketcher.Constraint("Vertical", 3, 3, 6, 3),
    Sketcher.Constraint("Diameter", 0, Q("3.2 mm")),
    Sketcher.Constraint("DistanceX", 0, 3, -1, 1, Q("45 mm")),
    Sketcher.Constraint("DistanceY", 0, 3, -1, 1, Q("50 mm")),
])
pocket4 = body.newObject("PartDesign::Pocket", "Pocket003")
pocket4.Profile = sketch7
pocket4.Length = 10
pocket4.Reversed = True

doc.recompute()
